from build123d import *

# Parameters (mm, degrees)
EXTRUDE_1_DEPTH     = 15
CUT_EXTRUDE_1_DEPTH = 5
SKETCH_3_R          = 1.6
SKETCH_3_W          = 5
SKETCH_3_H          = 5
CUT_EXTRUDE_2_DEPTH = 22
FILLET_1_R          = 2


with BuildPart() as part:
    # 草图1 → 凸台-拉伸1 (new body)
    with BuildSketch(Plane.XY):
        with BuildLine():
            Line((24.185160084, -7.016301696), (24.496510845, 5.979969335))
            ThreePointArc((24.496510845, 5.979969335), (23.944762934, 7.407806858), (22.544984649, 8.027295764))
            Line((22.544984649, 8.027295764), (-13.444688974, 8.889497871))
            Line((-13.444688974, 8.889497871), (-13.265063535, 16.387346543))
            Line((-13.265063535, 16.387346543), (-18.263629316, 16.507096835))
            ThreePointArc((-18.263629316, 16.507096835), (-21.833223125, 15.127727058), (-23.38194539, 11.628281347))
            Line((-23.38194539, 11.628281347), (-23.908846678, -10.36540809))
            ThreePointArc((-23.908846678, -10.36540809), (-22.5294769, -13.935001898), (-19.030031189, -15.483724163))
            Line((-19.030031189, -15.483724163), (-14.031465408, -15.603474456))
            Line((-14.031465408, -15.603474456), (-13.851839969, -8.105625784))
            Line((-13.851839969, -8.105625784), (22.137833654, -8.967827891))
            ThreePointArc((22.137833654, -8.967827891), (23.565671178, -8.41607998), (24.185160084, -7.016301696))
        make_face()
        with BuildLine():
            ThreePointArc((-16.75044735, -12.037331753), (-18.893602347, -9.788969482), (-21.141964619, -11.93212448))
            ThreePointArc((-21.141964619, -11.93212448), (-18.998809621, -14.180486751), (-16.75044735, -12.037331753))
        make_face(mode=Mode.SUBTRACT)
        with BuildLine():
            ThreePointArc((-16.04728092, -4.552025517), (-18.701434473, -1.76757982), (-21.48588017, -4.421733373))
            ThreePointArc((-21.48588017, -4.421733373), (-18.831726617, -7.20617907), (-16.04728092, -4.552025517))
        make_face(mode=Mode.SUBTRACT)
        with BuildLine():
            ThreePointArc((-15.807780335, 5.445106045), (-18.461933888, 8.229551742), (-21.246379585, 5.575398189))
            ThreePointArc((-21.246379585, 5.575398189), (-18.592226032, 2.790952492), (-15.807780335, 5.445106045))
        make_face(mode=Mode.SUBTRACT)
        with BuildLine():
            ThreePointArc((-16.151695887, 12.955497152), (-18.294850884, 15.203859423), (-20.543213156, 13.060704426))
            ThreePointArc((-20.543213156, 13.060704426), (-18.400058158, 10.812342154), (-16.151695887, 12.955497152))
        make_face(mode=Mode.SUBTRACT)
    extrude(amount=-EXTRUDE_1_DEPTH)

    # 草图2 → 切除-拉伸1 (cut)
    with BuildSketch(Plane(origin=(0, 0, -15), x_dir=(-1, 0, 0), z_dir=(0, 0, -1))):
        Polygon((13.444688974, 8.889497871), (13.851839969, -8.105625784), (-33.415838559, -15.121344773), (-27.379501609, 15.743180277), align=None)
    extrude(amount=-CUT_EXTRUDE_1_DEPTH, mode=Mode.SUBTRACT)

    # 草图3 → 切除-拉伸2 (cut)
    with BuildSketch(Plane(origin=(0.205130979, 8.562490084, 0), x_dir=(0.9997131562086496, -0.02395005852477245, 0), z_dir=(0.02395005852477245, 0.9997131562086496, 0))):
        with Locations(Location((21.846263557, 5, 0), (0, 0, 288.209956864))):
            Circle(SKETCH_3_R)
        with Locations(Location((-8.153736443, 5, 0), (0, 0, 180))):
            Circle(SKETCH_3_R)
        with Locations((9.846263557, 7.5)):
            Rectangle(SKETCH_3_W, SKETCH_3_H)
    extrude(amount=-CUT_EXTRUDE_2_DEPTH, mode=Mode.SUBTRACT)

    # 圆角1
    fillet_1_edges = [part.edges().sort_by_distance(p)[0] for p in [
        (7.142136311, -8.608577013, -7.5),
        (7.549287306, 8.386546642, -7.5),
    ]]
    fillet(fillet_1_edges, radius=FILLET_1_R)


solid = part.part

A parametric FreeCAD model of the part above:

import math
import FreeCAD as App
import Part
import Sketcher
Q = App.Units.Quantity


def edges_at(feature, points):
    """Names of the edges that pass closest to the given points."""
    edges = feature.Shape.Edges
    near = lambda p: min(range(len(edges)), key=lambda i: edges[i].distToShape(Part.Vertex(*p))[0])
    return sorted({f"Edge{near(p) + 1}" for p in points})


def add_polygon(sketch, points):
    """Adds a closed chain of lines whose ends are joined by coincident constraints."""
    first, n = sketch.GeometryCount, len(points)
    for a, b in zip(points, points[1:] + points[:1]):
        sketch.addGeometry(Part.LineSegment(App.Vector(*a, 0), App.Vector(*b, 0)), False)
    for i in range(n):
        sketch.addConstraint(Sketcher.Constraint("Coincident", first + i, 2, first + (i + 1) % n, 1))

doc = App.newDocument("Part")
body = doc.addObject("PartDesign::Body", "Body")

sketch1 = body.newObject("Sketcher::SketchObject", "Sketch")
sketch1.AttachmentSupport = (doc.getObject("XY_Plane"), [""])
sketch1.MapMode = "FlatFace"
sketch1.addGeometry(Part.LineSegment(App.Vector(24.2, -7, 0), App.Vector(24.5, 6, 0)), False)
sketch1.addGeometry(Part.ArcOfCircle(Part.Circle(App.Vector(22.5, 6, 0), App.Vector(0, 0, 1), 2), math.radians(-1), math.radians(89)), False)
sketch1.addGeometry(Part.LineSegment(App.Vector(22.5, 8, 0), App.Vector(-13.4, 8.9, 0)), False)
sketch1.addGeometry(Part.LineSegment(App.Vector(-13.4, 8.9, 0), App.Vector(-13.3, 16.4, 0)), False)
sketch1.addGeometry(Part.LineSegment(App.Vector(-13.3, 16.4, 0), App.Vector(-18.3, 16.5, 0)), False)
sketch1.addGeometry(Part.ArcOfCircle(Part.Circle(App.Vector(-18.4, 11.5, 0), App.Vector(0, 0, 1), 5), math.radians(89), math.radians(179)), False)
sketch1.addGeometry(Part.LineSegment(App.Vector(-23.4, 11.6, 0), App.Vector(-23.9, -10.4, 0)), False)
sketch1.addGeometry(Part.ArcOfCircle(Part.Circle(App.Vector(-18.9, -10.5, 0), App.Vector(0, 0, 1), 5), math.radians(179), math.radians(269)), False)
sketch1.addGeometry(Part.LineSegment(App.Vector(-19, -15.5, 0), App.Vector(-14, -15.6, 0)), False)
sketch1.addGeometry(Part.LineSegment(App.Vector(-14, -15.6, 0), App.Vector(-13.9, -8.1, 0)), False)
sketch1.addGeometry(Part.LineSegment(App.Vector(-13.9, -8.1, 0), App.Vector(22.1, -9, 0)), False)
sketch1.addGeometry(Part.ArcOfCircle(Part.Circle(App.Vector(22.2, -7, 0), App.Vector(0, 0, 1), 2), math.radians(-91), math.radians(-1)), False)
sketch1.addGeometry(Part.ArcOfCircle(Part.Circle(App.Vector(-18.9, -12, 0), App.Vector(0, 0, 1), 2.2), math.radians(-1), math.radians(179)), False)
sketch1.addGeometry(Part.ArcOfCircle(Part.Circle(App.Vector(-18.9, -12, 0), App.Vector(0, 0, 1), 2.2), math.radians(179), math.radians(359)), False)
sketch1.addGeometry(Part.Circle(App.Vector(-18.8, -4.5, 0), App.Vector(0, 0, 1), 2.7), False)
sketch1.addGeometry(Part.Circle(App.Vector(-18.5, 5.5, 0), App.Vector(0, 0, 1), 2.7), False)
sketch1.addGeometry(Part.Circle(App.Vector(-18.3, 13, 0), App.Vector(0, 0, 1), 2.2), False)
sketch1.addConstraint(Sketcher.Constraint("Tangent", 0, 2, 1, 1))
sketch1.addConstraint(Sketcher.Constraint("Tangent", 1, 2, 2, 1))
sketch1.addConstraint(Sketcher.Constraint("Coincident", 2, 2, 3, 1))
sketch1.addConstraint(Sketcher.Constraint("Coincident", 3, 2, 4, 1))
sketch1.addConstraint(Sketcher.Constraint("Tangent", 4, 2, 5, 1))
sketch1.addConstraint(Sketcher.Constraint("Tangent", 5, 2, 6, 1))
sketch1.addConstraint(Sketcher.Constraint("Tangent", 6, 2, 7, 1))
sketch1.addConstraint(Sketcher.Constraint("Tangent", 7, 2, 8, 1))
sketch1.addConstraint(Sketcher.Constraint("Coincident", 8, 2, 9, 1))
sketch1.addConstraint(Sketcher.Constraint("Coincident", 9, 2, 10, 1))
sketch1.addConstraint(Sketcher.Constraint("Tangent", 10, 2, 11, 1))
sketch1.addConstraint(Sketcher.Constraint("Tangent", 11, 2, 0, 1))
sketch1.addConstraint(Sketcher.Constraint("Tangent", 12, 1, 13, 2))
sketch1.addConstraint(Sketcher.Constraint("Coincident", 13, 1, 12, 2))
sketch1.addConstraint(Sketcher.Constraint("Equal", 5, 7))
sketch1.addConstraint(Sketcher.Constraint("Equal", 1, 11))
sketch1.addConstraint(Sketcher.Constraint("Equal", 14, 15))
sketch1.addConstraint(Sketcher.Constraint("Equal", 13, 16))
sketch1.addConstraint(Sketcher.Constraint("Perpendicular", 0, 2))
sketch1.addConstraint(Sketcher.Constraint("Perpendicular", 2, 3))
sketch1.addConstraint(Sketcher.Constraint("Perpendicular", 3, 4))
sketch1.addConstraint(Sketcher.Constraint("Perpendicular", 4, 6))
sketch1.addConstraint(Sketcher.Constraint("Perpendicular", 6, 8))
sketch1.addConstraint(Sketcher.Constraint("Perpendicular", 8, 9))
sketch1.addConstraint(Sketcher.Constraint("Perpendicular", 9, 10))
sketch1.addConstraint(Sketcher.Constraint("Equal", 4, 8))
sketch1.addConstraint(Sketcher.Constraint("Equal", 3, 9))
sketch1.addConstraint(Sketcher.Constraint("Radius", 1, Q("2 mm")))
sketch1.addConstraint(Sketcher.Constraint("Radius", 5, Q("5 mm")))
sketch1.addConstraint(Sketcher.Constraint("Distance", 0, Q("13 mm")))
sketch1.addConstraint(Sketcher.Constraint("Distance", 2, Q("36 mm")))
sketch1.addConstraint(Sketcher.Constraint("Distance", 4, Q("5 mm")))
sketch1.addConstraint(Sketcher.Constraint("Distance", 6, Q("22 mm")))
sketch1.addConstraint(Sketcher.Constraint("Diameter", 14, Q("5.44016 mm")))
sketch1.addConstraint(Sketcher.Constraint("Radius", 12, Q("2.196389 mm")))
sketch1.addConstraint(Sketcher.Constraint("DistanceY", 11, 3, -1, 1, Q("6.968402 mm")))
sketch1.addConstraint(Sketcher.Constraint("DistanceY", -1, 1, 16, 3, Q("13.008101 mm")))
sketch1.addConstraint(Sketcher.Constraint("DistanceY", 11, 2, -1, 1, Q("7.016302 mm")))
sketch1.addConstraint(Sketcher.Constraint("DistanceX", 7, 3, 14, 3, Q("0.1437 mm")))
sketch1.addConstraint(Sketcher.Constraint("DistanceX", 15, 3, 5, 3, Q("0.1437 mm")))
sketch1.addConstraint(Sketcher.Constraint("DistanceY", 7, 2, 13, 1, Q("3.5516 mm")))
sketch1.addConstraint(Sketcher.Constraint("DistanceX", 5, 3, -1, 1, Q("18.38338 mm")))
sketch1.addConstraint(Sketcher.Constraint("DistanceY", 12, 3, -1, 1, Q("11.984728 mm")))
sketch1.addConstraint(Sketcher.Constraint("DistanceY", 14, 3, -1, 1, Q("4.486879 mm")))
sketch1.addConstraint(Sketcher.Constraint("DistanceY", 12, 1, -1, 1, Q("12.037332 mm")))
sketch1.addConstraint(Sketcher.Constraint("DistanceX", 12, 3, 11, 3, Q("41.13194 mm")))
sketch1.addConstraint(Sketcher.Constraint("DistanceY", 15, 3, 5, 3, Q("5.998279 mm")))
sketch1.addConstraint(Sketcher.Constraint("DistanceX", 12, 3, 16, 3, Q("0.598751 mm")))
pad1 = body.newObject("PartDesign::Pad", "Pad")
pad1.Profile = sketch1
pad1.Length = 15
pad1.Reversed = True

sketch2 = body.newObject("Sketcher::SketchObject", "Sketch001")
sketch2.AttachmentSupport = (doc.getObject("XY_Plane"), [""])
sketch2.MapMode = "FlatFace"
sketch2.AttachmentOffset = App.Placement(App.Vector(0, 0, -15), App.Rotation())
add_polygon(sketch2, [(-14, -8), (-13, 9), (27, 16), (33, -15)])
sketch2.addConstraint(Sketcher.Constraint("Distance", 0, Q("17 mm")))
sketch2.addConstraint(Sketcher.Constraint("Distance", 1, Q("41.395501 mm")))
sketch2.addConstraint(Sketcher.Constraint("DistanceX", -1, 1, 1, 2, Q("27.379502 mm")))
sketch2.addConstraint(Sketcher.Constraint("DistanceX", 0, 2, -1, 1, Q("13.444689 mm")))
sketch2.addConstraint(Sketcher.Constraint("DistanceY", -1, 1, 1, 2, Q("15.74318 mm")))
sketch2.addConstraint(Sketcher.Constraint("DistanceX", -1, 1, 2, 2, Q("33.415839 mm")))
sketch2.addConstraint(Sketcher.Constraint("DistanceX", 3, 2, -1, 1, Q("13.85184 mm")))
sketch2.addConstraint(Sketcher.Constraint("DistanceY", 2, 2, 3, 2, Q("7.015719 mm")))
pocket1 = body.newObject("PartDesign::Pocket", "Pocket")
pocket1.Profile = sketch2
pocket1.Length = 5
pocket1.Reversed = True

sketch3 = body.newObject("Sketcher::SketchObject", "Sketch002")
sketch3.Placement = App.Placement(App.Vector(0.205131, 8.56249, 0), App.Rotation(App.Vector(0.999713156, -0.023950059, 0), App.Vector(0, 0, -1), App.Vector(0.023950059, 0.999713156, 0), "ZXY"))
sketch3.addGeometry(Part.Circle(App.Vector(21.8, 5, 0), App.Vector(0, 0, 1), 1.6), False)
sketch3.addGeometry(Part.Circle(App.Vector(-8.2, 5, 0), App.Vector(0, 0, 1), 1.6), False)
add_polygon(sketch3, [(7.3, 10), (7.3, 5), (12.3, 5), (12.3, 10)])
sketch3.addConstraint(Sketcher.Constraint("Vertical", 2))
sketch3.addConstraint(Sketcher.Constraint("Horizontal", 3))
sketch3.addConstraint(Sketcher.Constraint("Vertical", 4))
sketch3.addConstraint(Sketcher.Constraint("Horizontal", 5))
sketch3.addConstraint(Sketcher.Constraint("Equal", 0, 1))
sketch3.addConstraint(Sketcher.Constraint("Horizontal", 0, 3, 1, 3))
sketch3.addConstraint(Sketcher.Constraint("Horizontal", 1, 3, 2, 2))
sketch3.addConstraint(Sketcher.Constraint("Equal", 5, 2))
sketch3.addConstraint(Sketcher.Constraint("Diameter", 0, Q("3.2 mm")))
sketch3.addConstraint(Sketcher.Constraint("DistanceX", 3, 1, 3, 2, Q("5 mm")))
sketch3.addConstraint(Sketcher.Constraint("DistanceY", -1, 1, 0, 3, Q("5 mm")))
sketch3.addConstraint(Sketcher.Constraint("DistanceX", 1, 3, 0, 3, Q("30 mm")))
sketch3.addConstraint(Sketcher.Constraint("DistanceX", 2, 2, 0, 3, Q("14.5 mm")))
sketch3.addConstraint(Sketcher.Constraint("DistanceX", -1, 1, 0, 3, Q("21.846264 mm")))
pocket2 = body.newObject("PartDesign::Pocket", "Pocket001")
pocket2.Profile = sketch3
pocket2.Length = 22
doc.recompute()

fillet = body.newObject("PartDesign::Fillet", "Fillet")
fillet.Base = (pocket2, edges_at(pocket2, [(7.142, -8.609, -7.5), (7.549, 8.387, -7.5)]))
fillet.Radius = 2

doc.recompute()
